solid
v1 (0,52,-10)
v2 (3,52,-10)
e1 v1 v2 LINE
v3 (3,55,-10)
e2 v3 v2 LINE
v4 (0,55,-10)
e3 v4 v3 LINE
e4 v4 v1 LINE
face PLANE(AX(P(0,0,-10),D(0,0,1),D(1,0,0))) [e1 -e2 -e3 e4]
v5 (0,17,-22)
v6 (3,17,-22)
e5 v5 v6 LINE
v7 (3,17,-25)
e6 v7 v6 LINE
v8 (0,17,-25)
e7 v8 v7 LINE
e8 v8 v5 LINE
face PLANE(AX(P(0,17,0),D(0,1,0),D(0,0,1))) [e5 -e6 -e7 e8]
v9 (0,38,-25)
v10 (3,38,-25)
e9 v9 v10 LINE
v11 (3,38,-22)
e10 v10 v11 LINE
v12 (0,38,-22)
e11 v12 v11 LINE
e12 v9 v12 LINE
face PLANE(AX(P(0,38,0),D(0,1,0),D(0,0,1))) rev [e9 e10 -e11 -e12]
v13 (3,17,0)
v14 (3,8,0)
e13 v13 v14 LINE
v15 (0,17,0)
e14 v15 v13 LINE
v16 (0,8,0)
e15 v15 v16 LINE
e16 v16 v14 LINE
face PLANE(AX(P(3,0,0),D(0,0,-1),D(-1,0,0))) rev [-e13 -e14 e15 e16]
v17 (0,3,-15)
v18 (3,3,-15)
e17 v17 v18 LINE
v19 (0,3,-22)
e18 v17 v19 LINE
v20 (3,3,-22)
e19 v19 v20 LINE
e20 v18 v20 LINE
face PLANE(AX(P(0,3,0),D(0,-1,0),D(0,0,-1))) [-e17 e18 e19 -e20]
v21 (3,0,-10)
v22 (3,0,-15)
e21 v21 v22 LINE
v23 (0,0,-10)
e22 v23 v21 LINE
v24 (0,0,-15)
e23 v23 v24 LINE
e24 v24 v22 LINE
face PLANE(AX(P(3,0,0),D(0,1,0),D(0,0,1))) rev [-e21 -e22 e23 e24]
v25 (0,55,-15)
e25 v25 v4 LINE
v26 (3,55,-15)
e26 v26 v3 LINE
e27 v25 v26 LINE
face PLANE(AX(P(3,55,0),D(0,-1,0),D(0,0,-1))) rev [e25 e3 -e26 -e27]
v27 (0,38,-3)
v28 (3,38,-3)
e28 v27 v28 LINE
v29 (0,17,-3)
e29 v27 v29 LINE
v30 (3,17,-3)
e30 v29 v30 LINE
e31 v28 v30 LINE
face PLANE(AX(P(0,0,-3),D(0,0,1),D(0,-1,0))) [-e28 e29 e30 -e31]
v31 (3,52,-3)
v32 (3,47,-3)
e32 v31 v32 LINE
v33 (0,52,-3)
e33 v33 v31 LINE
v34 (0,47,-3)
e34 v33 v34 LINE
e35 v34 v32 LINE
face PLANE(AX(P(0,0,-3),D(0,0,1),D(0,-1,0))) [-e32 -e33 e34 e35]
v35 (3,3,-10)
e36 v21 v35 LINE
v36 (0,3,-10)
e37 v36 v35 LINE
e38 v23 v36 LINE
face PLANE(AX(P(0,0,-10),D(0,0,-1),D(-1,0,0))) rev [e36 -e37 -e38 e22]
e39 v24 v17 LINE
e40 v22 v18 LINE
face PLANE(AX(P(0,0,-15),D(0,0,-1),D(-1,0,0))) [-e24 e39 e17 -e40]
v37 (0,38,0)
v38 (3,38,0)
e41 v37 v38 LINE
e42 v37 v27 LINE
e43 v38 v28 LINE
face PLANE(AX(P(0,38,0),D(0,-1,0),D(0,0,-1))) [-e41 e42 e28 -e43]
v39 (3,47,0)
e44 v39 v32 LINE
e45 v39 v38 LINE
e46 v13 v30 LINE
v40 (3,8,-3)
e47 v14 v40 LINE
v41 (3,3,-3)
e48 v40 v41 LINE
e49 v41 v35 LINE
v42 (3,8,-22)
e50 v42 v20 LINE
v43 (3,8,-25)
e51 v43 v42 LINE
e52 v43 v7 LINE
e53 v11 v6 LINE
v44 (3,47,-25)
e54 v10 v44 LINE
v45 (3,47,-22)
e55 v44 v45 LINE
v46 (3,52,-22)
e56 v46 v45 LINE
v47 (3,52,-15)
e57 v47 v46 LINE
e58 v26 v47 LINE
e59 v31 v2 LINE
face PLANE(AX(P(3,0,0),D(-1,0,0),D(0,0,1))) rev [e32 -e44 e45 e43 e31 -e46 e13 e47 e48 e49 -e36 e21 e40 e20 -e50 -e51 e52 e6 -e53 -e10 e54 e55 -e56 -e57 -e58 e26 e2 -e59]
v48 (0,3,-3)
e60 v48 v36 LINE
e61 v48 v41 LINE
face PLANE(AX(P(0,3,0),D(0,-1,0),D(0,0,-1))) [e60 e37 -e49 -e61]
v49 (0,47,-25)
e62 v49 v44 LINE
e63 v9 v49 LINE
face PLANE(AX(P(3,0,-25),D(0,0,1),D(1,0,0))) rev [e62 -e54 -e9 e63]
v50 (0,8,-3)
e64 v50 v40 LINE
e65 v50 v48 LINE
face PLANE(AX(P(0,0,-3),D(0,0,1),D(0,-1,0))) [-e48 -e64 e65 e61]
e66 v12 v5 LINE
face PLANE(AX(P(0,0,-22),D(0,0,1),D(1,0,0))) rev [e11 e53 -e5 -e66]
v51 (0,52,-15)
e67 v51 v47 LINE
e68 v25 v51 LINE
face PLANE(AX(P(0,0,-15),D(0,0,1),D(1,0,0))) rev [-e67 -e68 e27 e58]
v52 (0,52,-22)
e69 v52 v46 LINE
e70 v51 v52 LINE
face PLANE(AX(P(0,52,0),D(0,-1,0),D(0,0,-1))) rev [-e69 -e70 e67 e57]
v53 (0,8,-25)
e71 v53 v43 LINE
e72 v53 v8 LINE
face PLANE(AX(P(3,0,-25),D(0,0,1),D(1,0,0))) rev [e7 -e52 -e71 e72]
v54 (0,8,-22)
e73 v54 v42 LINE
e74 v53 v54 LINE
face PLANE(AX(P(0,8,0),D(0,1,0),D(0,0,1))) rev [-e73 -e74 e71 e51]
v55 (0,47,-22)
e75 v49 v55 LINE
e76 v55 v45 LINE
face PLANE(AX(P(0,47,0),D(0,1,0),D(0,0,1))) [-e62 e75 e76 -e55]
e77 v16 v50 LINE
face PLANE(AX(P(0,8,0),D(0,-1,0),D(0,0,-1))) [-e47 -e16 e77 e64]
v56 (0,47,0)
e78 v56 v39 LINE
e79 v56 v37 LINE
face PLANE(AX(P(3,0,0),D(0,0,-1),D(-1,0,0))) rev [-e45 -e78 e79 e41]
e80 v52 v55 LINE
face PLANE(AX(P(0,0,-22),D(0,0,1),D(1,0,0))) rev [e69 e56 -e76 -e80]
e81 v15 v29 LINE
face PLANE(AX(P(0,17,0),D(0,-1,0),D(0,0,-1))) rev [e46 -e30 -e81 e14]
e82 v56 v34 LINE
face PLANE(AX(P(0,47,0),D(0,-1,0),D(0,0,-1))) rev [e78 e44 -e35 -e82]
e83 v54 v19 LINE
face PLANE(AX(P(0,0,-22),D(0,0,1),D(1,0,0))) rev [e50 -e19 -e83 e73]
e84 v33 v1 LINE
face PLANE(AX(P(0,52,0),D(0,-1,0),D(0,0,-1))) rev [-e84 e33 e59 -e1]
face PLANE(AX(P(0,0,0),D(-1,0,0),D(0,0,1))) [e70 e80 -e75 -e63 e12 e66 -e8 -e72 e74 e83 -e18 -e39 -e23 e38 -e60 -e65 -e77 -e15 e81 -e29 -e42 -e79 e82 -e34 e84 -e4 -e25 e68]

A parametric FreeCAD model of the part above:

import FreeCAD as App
import Part
import Sketcher

V = App.Vector

doc = App.newDocument("Part")
params = doc.addObject("Spreadsheet::Sheet", "Params")
for row, (alias, value) in enumerate([
    ("sketch1_width", "55 mm"),
    ("sketch1_height", "25 mm"),
    ("pad1_length", "3 mm"),
    ("sketch2_width", "8 mm"),
    ("sketch2_width2", "21 mm"),
    ("sketch2_height", "3 mm"),
    ("sketch3_width", "3 mm"),
    ("sketch3_height", "7 mm"),
], start=1):
    params.set(f"A{row}", alias)
    params.set(f"B{row}", "=" + value)
    params.setAlias(f"B{row}", alias)

body = doc.addObject("PartDesign::Body", "Body")

# Sketch on YZ plane
sketch1 = body.newObject("Sketcher::SketchObject", "Sketch")
sketch1.AttachmentSupport = (doc.getObject("YZ_Plane"), [""])
sketch1.MapMode = "FlatFace"
sketch1.addGeometry(Part.LineSegment(V(55, 0, 0), V(0, 0, 0)), False)
sketch1.addGeometry(Part.LineSegment(V(0, 0, 0), V(0, -25, 0)), False)
sketch1.addGeometry(Part.LineSegment(V(0, -25, 0), V(55, -25, 0)), False)
sketch1.addGeometry(Part.LineSegment(V(55, -25, 0), V(55, 0, 0)), False)
sketch1.addConstraint(Sketcher.Constraint("Coincident", 0, 2, 1, 1))
sketch1.addConstraint(Sketcher.Constraint("Coincident", 1, 2, 2, 1))
sketch1.addConstraint(Sketcher.Constraint("Coincident", 2, 2, 3, 1))
sketch1.addConstraint(Sketcher.Constraint("Coincident", 3, 2, 0, 1))
sketch1.addConstraint(Sketcher.Constraint("Horizontal", 0))
sketch1.addConstraint(Sketcher.Constraint("Vertical", 1))
sketch1.addConstraint(Sketcher.Constraint("Horizontal", 2))
sketch1.addConstraint(Sketcher.Constraint("Vertical", 3))
sketch1.addConstraint(Sketcher.Constraint("Coincident", 0, 2, -1, 1))
sketch1.addConstraint(Sketcher.Constraint("DistanceX", 0, 2, 0, 1, 55.0))
sketch1.addConstraint(Sketcher.Constraint("DistanceY", 1, 2, 1, 1, 25.0))
sketch1.setExpression("Constraints[9]", "Params.sketch1_width")
sketch1.setExpression("Constraints[10]", "Params.sketch1_height")
pad1 = body.newObject("PartDesign::Pad", "Pad")
pad1.Profile = sketch1
pad1.setExpression("Length", "Params.pad1_length")

# Sketch on YZ plane
sketch2 = body.newObject("Sketcher::SketchObject", "Sketch001")
sketch2.AttachmentSupport = (doc.getObject("YZ_Plane"), [""])
sketch2.MapMode = "FlatFace"
sketch2.AttachmentOffset = App.Placement(V(0, 0, 3), App.Rotation())
sketch2.addGeometry(Part.LineSegment(V(55, 0, 0), V(47, 0, 0)), False)
sketch2.addGeometry(Part.LineSegment(V(47, 0, 0), V(47, -3, 0)), False)
sketch2.addGeometry(Part.LineSegment(V(47, -3, 0), V(55, -3, 0)), False)
sketch2.addGeometry(Part.LineSegment(V(55, -3, 0), V(55, 0, 0)), False)
sketch2.addGeometry(Part.LineSegment(V(55, -22, 0), V(47, -22, 0)), False)
sketch2.addGeometry(Part.LineSegment(V(47, -22, 0), V(47, -25, 0)), False)
sketch2.addGeometry(Part.LineSegment(V(47, -25, 0), V(55, -25, 0)), False)
sketch2.addGeometry(Part.LineSegment(V(55, -25, 0), V(55, -22, 0)), False)
sketch2.addGeometry(Part.LineSegment(V(38, -22, 0), V(17, -22, 0)), False)
sketch2.addGeometry(Part.LineSegment(V(17, -22, 0), V(17, -25, 0)), False)
sketch2.addGeometry(Part.LineSegment(V(17, -25, 0), V(38, -25, 0)), False)
sketch2.addGeometry(Part.LineSegment(V(38, -25, 0), V(38, -22, 0)), False)
sketch2.addGeometry(Part.LineSegment(V(38, 0, 0), V(17, 0, 0)), False)
sketch2.addGeometry(Part.LineSegment(V(17, 0, 0), V(17, -3, 0)), False)
sketch2.addGeometry(Part.LineSegment(V(17, -3, 0), V(38, -3, 0)), False)
sketch2.addGeometry(Part.LineSegment(V(38, -3, 0), V(38, 0, 0)), False)
sketch2.addGeometry(Part.LineSegment(V(8, 0, 0), V(0, 0, 0)), False)
sketch2.addGeometry(Part.LineSegment(V(0, 0, 0), V(0, -3, 0)), False)
sketch2.addGeometry(Part.LineSegment(V(0, -3, 0), V(8, -3, 0)), False)
sketch2.addGeometry(Part.LineSegment(V(8, -3, 0), V(8, 0, 0)), False)
sketch2.addGeometry(Part.LineSegment(V(8, -22, 0), V(0, -22, 0)), False)
sketch2.addGeometry(Part.LineSegment(V(0, -22, 0), V(0, -25, 0)), False)
sketch2.addGeometry(Part.LineSegment(V(0, -25, 0), V(8, -25, 0)), False)
sketch2.addGeometry(Part.LineSegment(V(8, -25, 0), V(8, -22, 0)), False)
sketch2.addConstraint(Sketcher.Constraint("Coincident", 0, 2, 1, 1))
sketch2.addConstraint(Sketcher.Constraint("Coincident", 1, 2, 2, 1))
sketch2.addConstraint(Sketcher.Constraint("Coincident", 2, 2, 3, 1))
sketch2.addConstraint(Sketcher.Constraint("Coincident", 3, 2, 0, 1))
sketch2.addConstraint(Sketcher.Constraint("Coincident", 4, 2, 5, 1))
sketch2.addConstraint(Sketcher.Constraint("Coincident", 5, 2, 6, 1))
sketch2.addConstraint(Sketcher.Constraint("Coincident", 6, 2, 7, 1))
sketch2.addConstraint(Sketcher.Constraint("Coincident", 7, 2, 4, 1))
sketch2.addConstraint(Sketcher.Constraint("Coincident", 8, 2, 9, 1))
sketch2.addConstraint(Sketcher.Constraint("Coincident", 9, 2, 10, 1))
sketch2.addConstraint(Sketcher.Constraint("Coincident", 10, 2, 11, 1))
sketch2.addConstraint(Sketcher.Constraint("Coincident", 11, 2, 8, 1))
sketch2.addConstraint(Sketcher.Constraint("Coincident", 12, 2, 13, 1))
sketch2.addConstraint(Sketcher.Constraint("Coincident", 13, 2, 14, 1))
sketch2.addConstraint(Sketcher.Constraint("Coincident", 14, 2, 15, 1))
sketch2.addConstraint(Sketcher.Constraint("Coincident", 15, 2, 12, 1))
sketch2.addConstraint(Sketcher.Constraint("Coincident", 16, 2, 17, 1))
sketch2.addConstraint(Sketcher.Constraint("Coincident", 17, 2, 18, 1))
sketch2.addConstraint(Sketcher.Constraint("Coincident", 18, 2, 19, 1))
sketch2.addConstraint(Sketcher.Constraint("Coincident", 19, 2, 16, 1))
sketch2.addConstraint(Sketcher.Constraint("Coincident", 20, 2, 21, 1))
sketch2.addConstraint(Sketcher.Constraint("Coincident", 21, 2, 22, 1))
sketch2.addConstraint(Sketcher.Constraint("Coincident", 22, 2, 23, 1))
sketch2.addConstraint(Sketcher.Constraint("Coincident", 23, 2, 20, 1))
sketch2.addConstraint(Sketcher.Constraint("Horizontal", 0))
sketch2.addConstraint(Sketcher.Constraint("Vertical", 1))
sketch2.addConstraint(Sketcher.Constraint("Horizontal", 2))
sketch2.addConstraint(Sketcher.Constraint("Vertical", 3))
sketch2.addConstraint(Sketcher.Constraint("Horizontal", 4))
sketch2.addConstraint(Sketcher.Constraint("Vertical", 5))
sketch2.addConstraint(Sketcher.Constraint("Horizontal", 6))
sketch2.addConstraint(Sketcher.Constraint("Vertical", 7))
sketch2.addConstraint(Sketcher.Constraint("Horizontal", 8))
sketch2.addConstraint(Sketcher.Constraint("Vertical", 9))
sketch2.addConstraint(Sketcher.Constraint("Horizontal", 10))
sketch2.addConstraint(Sketcher.Constraint("Vertical", 11))
sketch2.addConstraint(Sketcher.Constraint("Horizontal", 12))
sketch2.addConstraint(Sketcher.Constraint("Vertical", 13))
sketch2.addConstraint(Sketcher.Constraint("Horizontal", 14))
sketch2.addConstraint(Sketcher.Constraint("Vertical", 15))
sketch2.addConstraint(Sketcher.Constraint("Horizontal", 16))
sketch2.addConstraint(Sketcher.Constraint("Vertical", 17))
sketch2.addConstraint(Sketcher.Constraint("Horizontal", 18))
sketch2.addConstraint(Sketcher.Constraint("Vertical", 19))
sketch2.addConstraint(Sketcher.Constraint("Horizontal", 20))
sketch2.addConstraint(Sketcher.Constraint("Vertical", 21))
sketch2.addConstraint(Sketcher.Constraint("Horizontal", 22))
sketch2.addConstraint(Sketcher.Constraint("Vertical", 23))
sketch2.addConstraint(Sketcher.Constraint("Coincident", 16, 2, -1, 1))
sketch2.addConstraint(Sketcher.Constraint("PointOnObject", 0, 2, -1))
sketch2.addConstraint(Sketcher.Constraint("PointOnObject", 12, 2, -1))
sketch2.addConstraint(Sketcher.Constraint("PointOnObject", 20, 2, -2))
sketch2.addConstraint(Sketcher.Constraint("Horizontal", 7, 2, 8, 2))
sketch2.addConstraint(Sketcher.Constraint("Horizontal", 6, 2, 9, 2))
sketch2.addConstraint(Sketcher.Constraint("Horizontal", 2, 2, 13, 2))
sketch2.addConstraint(Sketcher.Constraint("Horizontal", 14, 2, 17, 2))
sketch2.addConstraint(Sketcher.Constraint("Horizontal", 11, 2, 20, 2))
sketch2.addConstraint(Sketcher.Constraint("Horizontal", 10, 2, 21, 2))
sketch2.addConstraint(Sketcher.Constraint("Vertical", 1, 2, 4, 2))
sketch2.addConstraint(Sketcher.Constraint("Vertical", 3, 2, 6, 2))
sketch2.addConstraint(Sketcher.Constraint("Vertical", 9, 2, 12, 2))
sketch2.addConstraint(Sketcher.Constraint("Vertical", 11, 2, 14, 2))
sketch2.addConstraint(Sketcher.Constraint("Vertical", 19, 2, 22, 2))
sketch2.addConstraint(Sketcher.Constraint("Equal", 6, 16))
sketch2.addConstraint(Sketcher.Constraint("Equal", 3, 5))
sketch2.addConstraint(Sketcher.Constraint("DistanceX", 0, 2, 0, 1, 8.0))
sketch2.addConstraint(Sketcher.Constraint("DistanceX", 8, 2, 8, 1, 21.0))
sketch2.addConstraint(Sketcher.Constraint("DistanceY", 1, 2, 1, 1, 3.0))
sketch2.addConstraint(Sketcher.Constraint("DistanceX", -1, 1, 0, 2, 47.0))
sketch2.addConstraint(Sketcher.Constraint("DistanceY", 4, 2, -1, 1, 22.0))
sketch2.addConstraint(Sketcher.Constraint("DistanceX", -1, 1, 8, 2, 17.0))
sketch2.setExpression("Constraints[65]", "Params.sketch2_width")
sketch2.setExpression("Constraints[66]", "Params.sketch2_width2")
sketch2.setExpression("Constraints[67]", "Params.sketch2_height")
pocket1 = body.newObject("PartDesign::Pocket", "Pocket")
pocket1.Profile = sketch2
pocket1.Type = "ThroughAll"

# Sketch on YZ plane
sketch3 = body.newObject("Sketcher::SketchObject", "Sketch002")
sketch3.AttachmentSupport = (doc.getObject("YZ_Plane"), [""])
sketch3.MapMode = "FlatFace"
sketch3.AttachmentOffset = App.Placement(V(0, 0, 3), App.Rotation())
sketch3.addGeometry(Part.LineSegment(V(55, -3, 0), V(52, -3, 0)), False)
sketch3.addGeometry(Part.LineSegment(V(52, -3, 0), V(52, -10, 0)), False)
sketch3.addGeometry(Part.LineSegment(V(52, -10, 0), V(55, -10, 0)), False)
sketch3.addGeometry(Part.LineSegment(V(55, -10, 0), V(55, -3, 0)), False)
sketch3.addGeometry(Part.LineSegment(V(55, -15, 0), V(52, -15, 0)), False)
sketch3.addGeometry(Part.LineSegment(V(52, -15, 0), V(52, -22, 0)), False)
sketch3.addGeometry(Part.LineSegment(V(52, -22, 0), V(55, -22, 0)), False)
sketch3.addGeometry(Part.LineSegment(V(55, -22, 0), V(55, -15, 0)), False)
sketch3.addGeometry(Part.LineSegment(V(3, -15, 0), V(0, -15, 0)), False)
sketch3.addGeometry(Part.LineSegment(V(0, -15, 0), V(0, -22, 0)), False)
sketch3.addGeometry(Part.LineSegment(V(0, -22, 0), V(3, -22, 0)), False)
sketch3.addGeometry(Part.LineSegment(V(3, -22, 0), V(3, -15, 0)), False)
sketch3.addGeometry(Part.LineSegment(V(3, -3, 0), V(0, -3, 0)), False)
sketch3.addGeometry(Part.LineSegment(V(0, -3, 0), V(0, -10, 0)), False)
sketch3.addGeometry(Part.LineSegment(V(0, -10, 0), V(3, -10, 0)), False)
sketch3.addGeometry(Part.LineSegment(V(3, -10, 0), V(3, -3, 0)), False)
sketch3.addConstraint(Sketcher.Constraint("Coincident", 0, 2, 1, 1))
sketch3.addConstraint(Sketcher.Constraint("Coincident", 1, 2, 2, 1))
sketch3.addConstraint(Sketcher.Constraint("Coincident", 2, 2, 3, 1))
sketch3.addConstraint(Sketcher.Constraint("Coincident", 3, 2, 0, 1))
sketch3.addConstraint(Sketcher.Constraint("Coincident", 4, 2, 5, 1))
sketch3.addConstraint(Sketcher.Constraint("Coincident", 5, 2, 6, 1))
sketch3.addConstraint(Sketcher.Constraint("Coincident", 6, 2, 7, 1))
sketch3.addConstraint(Sketcher.Constraint("Coincident", 7, 2, 4, 1))
sketch3.addConstraint(Sketcher.Constraint("Coincident", 8, 2, 9, 1))
sketch3.addConstraint(Sketcher.Constraint("Coincident", 9, 2, 10, 1))
sketch3.addConstraint(Sketcher.Constraint("Coincident", 10, 2, 11, 1))
sketch3.addConstraint(Sketcher.Constraint("Coincident", 11, 2, 8, 1))
sketch3.addConstraint(Sketcher.Constraint("Coincident", 12, 2, 13, 1))
sketch3.addConstraint(Sketcher.Constraint("Coincident", 13, 2, 14, 1))
sketch3.addConstraint(Sketcher.Constraint("Coincident", 14, 2, 15, 1))
sketch3.addConstraint(Sketcher.Constraint("Coincident", 15, 2, 12, 1))
sketch3.addConstraint(Sketcher.Constraint("Horizontal", 0))
sketch3.addConstraint(Sketcher.Constraint("Vertical", 1))
sketch3.addConstraint(Sketcher.Constraint("Horizontal", 2))
sketch3.addConstraint(Sketcher.Constraint("Vertical", 3))
sketch3.addConstraint(Sketcher.Constraint("Horizontal", 4))
sketch3.addConstraint(Sketcher.Constraint("Vertical", 5))
sketch3.addConstraint(Sketcher.Constraint("Horizontal", 6))
sketch3.addConstraint(Sketcher.Constraint("Vertical", 7))
sketch3.addConstraint(Sketcher.Constraint("Horizontal", 8))
sketch3.addConstraint(Sketcher.Constraint("Vertical", 9))
sketch3.addConstraint(Sketcher.Constraint("Horizontal", 10))
sketch3.addConstraint(Sketcher.Constraint("Vertical", 11))
sketch3.addConstraint(Sketcher.Constraint("Horizontal", 12))
sketch3.addConstraint(Sketcher.Constraint("Vertical", 13))
sketch3.addConstraint(Sketcher.Constraint("Horizontal", 14))
sketch3.addConstraint(Sketcher.Constraint("Vertical", 15))
sketch3.addConstraint(Sketcher.Constraint("PointOnObject", 8, 2, -2))
sketch3.addConstraint(Sketcher.Constraint("PointOnObject", 12, 2, -2))
sketch3.addConstraint(Sketcher.Constraint("Horizontal", 7, 2, 8, 2))
sketch3.addConstraint(Sketcher.Constraint("Horizontal", 6, 2, 9, 2))
sketch3.addConstraint(Sketcher.Constraint("Horizontal", 3, 2, 12, 2))
sketch3.addConstraint(Sketcher.Constraint("Horizontal", 2, 2, 13, 2))
sketch3.addConstraint(Sketcher.Constraint("Vertical", 1, 2, 4, 2))
sketch3.addConstraint(Sketcher.Constraint("Vertical", 3, 2, 6, 2))
sketch3.addConstraint(Sketcher.Constraint("Vertical", 11, 2, 14, 2))
sketch3.addConstraint(Sketcher.Constraint("Equal", 6, 8))
sketch3.addConstraint(Sketcher.Constraint("Equal", 3, 5))
sketch3.addConstraint(Sketcher.Constraint("DistanceX", 0, 2, 0, 1, 3.0))
sketch3.addConstraint(Sketcher.Constraint("DistanceY", 1, 2, 1, 1, 7.0))
sketch3.addConstraint(Sketcher.Constraint("DistanceX", -1, 1, 0, 2, 52.0))
sketch3.addConstraint(Sketcher.Constraint("DistanceY", 0, 2, -1, 1, 3.0))
sketch3.addConstraint(Sketcher.Constraint("DistanceY", 4, 2, -1, 1, 15.0))
sketch3.setExpression("Constraints[43]", "Params.sketch3_width")
sketch3.setExpression("Constraints[44]", "Params.sketch3_height")
pocket2 = body.newObject("PartDesign::Pocket", "Pocket001")
pocket2.Profile = sketch3
pocket2.Type = "ThroughAll"

doc.recompute()
